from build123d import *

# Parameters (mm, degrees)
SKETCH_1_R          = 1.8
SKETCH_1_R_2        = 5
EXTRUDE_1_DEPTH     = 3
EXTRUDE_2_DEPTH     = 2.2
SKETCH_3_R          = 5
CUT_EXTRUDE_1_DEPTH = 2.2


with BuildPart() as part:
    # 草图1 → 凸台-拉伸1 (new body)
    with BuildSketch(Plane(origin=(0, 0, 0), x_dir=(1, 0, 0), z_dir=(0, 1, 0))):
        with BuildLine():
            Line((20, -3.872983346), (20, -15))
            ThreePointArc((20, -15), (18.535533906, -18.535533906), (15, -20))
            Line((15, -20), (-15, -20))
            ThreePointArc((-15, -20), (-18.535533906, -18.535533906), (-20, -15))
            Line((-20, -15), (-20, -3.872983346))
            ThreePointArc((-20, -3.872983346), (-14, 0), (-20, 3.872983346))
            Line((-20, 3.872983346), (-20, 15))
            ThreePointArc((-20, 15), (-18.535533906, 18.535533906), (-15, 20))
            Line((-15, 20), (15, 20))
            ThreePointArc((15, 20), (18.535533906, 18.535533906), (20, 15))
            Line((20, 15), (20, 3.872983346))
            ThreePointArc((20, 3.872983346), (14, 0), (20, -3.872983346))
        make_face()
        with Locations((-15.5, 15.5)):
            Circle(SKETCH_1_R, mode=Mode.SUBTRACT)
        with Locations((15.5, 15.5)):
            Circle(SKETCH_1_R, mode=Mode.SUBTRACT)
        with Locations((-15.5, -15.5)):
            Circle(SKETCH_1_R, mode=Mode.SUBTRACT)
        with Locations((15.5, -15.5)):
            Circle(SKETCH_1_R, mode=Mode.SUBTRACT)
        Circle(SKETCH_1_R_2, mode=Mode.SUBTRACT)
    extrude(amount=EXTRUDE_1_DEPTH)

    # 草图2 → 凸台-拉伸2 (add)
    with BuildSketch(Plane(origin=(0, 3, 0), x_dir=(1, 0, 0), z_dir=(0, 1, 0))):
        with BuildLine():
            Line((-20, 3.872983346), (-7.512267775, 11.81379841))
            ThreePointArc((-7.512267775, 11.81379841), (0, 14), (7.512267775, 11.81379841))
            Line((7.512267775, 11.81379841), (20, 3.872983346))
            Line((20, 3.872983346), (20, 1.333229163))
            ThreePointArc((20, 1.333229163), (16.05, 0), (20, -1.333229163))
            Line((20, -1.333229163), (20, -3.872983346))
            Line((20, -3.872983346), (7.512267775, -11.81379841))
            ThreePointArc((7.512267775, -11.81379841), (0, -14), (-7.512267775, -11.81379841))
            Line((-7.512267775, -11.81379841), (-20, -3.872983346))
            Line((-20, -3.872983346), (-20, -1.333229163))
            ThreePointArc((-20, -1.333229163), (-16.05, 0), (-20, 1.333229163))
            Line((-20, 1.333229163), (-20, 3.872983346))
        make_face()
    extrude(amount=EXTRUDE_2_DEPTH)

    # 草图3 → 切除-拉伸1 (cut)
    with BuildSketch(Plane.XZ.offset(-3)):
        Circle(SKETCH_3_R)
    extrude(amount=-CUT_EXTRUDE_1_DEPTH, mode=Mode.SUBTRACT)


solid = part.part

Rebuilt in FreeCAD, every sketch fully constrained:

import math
import FreeCAD as App
import Part
import Sketcher
from FreeCAD import Vector

doc = App.newDocument("Part")
body = doc.addObject("PartDesign::Body", "Body")

# Sketch on XZ plane
sketch1 = doc.addObject("Sketcher::SketchObject", "Sketch")
body.addObject(sketch1)
sketch1.AttachmentSupport = (doc.XZ_Plane, [""])
sketch1.MapMode = "FlatFace"
sketch1.addGeometry(Part.LineSegment(Vector(20, 15, 0), Vector(20, 3.872983, 0)), False)
sketch1.addGeometry(Part.ArcOfCircle(Part.Circle(Vector(18.25, 0, 0), Vector(0, 0, 1), 4.25), math.radians(65.684261), math.radians(294.315739)), False)
sketch1.addGeometry(Part.LineSegment(Vector(20, -3.872983, 0), Vector(20, -15, 0)), False)
sketch1.addGeometry(Part.ArcOfCircle(Part.Circle(Vector(15, -15, 0), Vector(0, 0, 1), 5), math.radians(-90), math.radians(0)), False)
sketch1.addGeometry(Part.LineSegment(Vector(15, -20, 0), Vector(-15, -20, 0)), False)
sketch1.addGeometry(Part.ArcOfCircle(Part.Circle(Vector(-15, -15, 0), Vector(0, 0, 1), 5), math.radians(180), math.radians(270)), False)
sketch1.addGeometry(Part.LineSegment(Vector(-20, -15, 0), Vector(-20, -3.872983, 0)), False)
sketch1.addGeometry(Part.ArcOfCircle(Part.Circle(Vector(-18.25, 0, 0), Vector(0, 0, 1), 4.25), math.radians(-114.315739), math.radians(114.315739)), False)
sketch1.addGeometry(Part.LineSegment(Vector(-20, 3.872983, 0), Vector(-20, 15, 0)), False)
sketch1.addGeometry(Part.ArcOfCircle(Part.Circle(Vector(-15, 15, 0), Vector(0, 0, 1), 5), math.radians(90), math.radians(180)), False)
sketch1.addGeometry(Part.LineSegment(Vector(-15, 20, 0), Vector(15, 20, 0)), False)
sketch1.addGeometry(Part.ArcOfCircle(Part.Circle(Vector(15, 15, 0), Vector(0, 0, 1), 5), math.radians(0), math.radians(90)), False)
sketch1.addGeometry(Part.Circle(Vector(15.5, 15.5, 0), Vector(0, 0, 1), 1.8), False)
sketch1.addGeometry(Part.Circle(Vector(-15.5, 15.5, 0), Vector(0, 0, 1), 1.8), False)
sketch1.addGeometry(Part.Circle(Vector(15.5, -15.5, 0), Vector(0, 0, 1), 1.8), False)
sketch1.addGeometry(Part.Circle(Vector(0, 0, 0), Vector(0, 0, 1), 5), False)
sketch1.addGeometry(Part.Circle(Vector(-15.5, -15.5, 0), Vector(0, 0, 1), 1.8), False)
sketch1.addConstraint(Sketcher.Constraint("Coincident", 0, 2, 1, 1))
sketch1.addConstraint(Sketcher.Constraint("Coincident", 1, 2, 2, 1))
sketch1.addConstraint(Sketcher.Constraint("Tangent", 2, 2, 3, 2))
sketch1.addConstraint(Sketcher.Constraint("Tangent", 3, 1, 4, 1))
sketch1.addConstraint(Sketcher.Constraint("Tangent", 4, 2, 5, 2))
sketch1.addConstraint(Sketcher.Constraint("Tangent", 5, 1, 6, 1))
sketch1.addConstraint(Sketcher.Constraint("Coincident", 6, 2, 7, 1))
sketch1.addConstraint(Sketcher.Constraint("Coincident", 7, 2, 8, 1))
sketch1.addConstraint(Sketcher.Constraint("Tangent", 8, 2, 9, 2))
sketch1.addConstraint(Sketcher.Constraint("Tangent", 9, 1, 10, 1))
sketch1.addConstraint(Sketcher.Constraint("Tangent", 10, 2, 11, 2))
sketch1.addConstraint(Sketcher.Constraint("Tangent", 11, 1, 0, 1))
sketch1.addConstraint(Sketcher.Constraint("Vertical", 0))
sketch1.addConstraint(Sketcher.Constraint("Vertical", 2))
sketch1.addConstraint(Sketcher.Constraint("Horizontal", 4))
sketch1.addConstraint(Sketcher.Constraint("Vertical", 6))
sketch1.addConstraint(Sketcher.Constraint("Vertical", 8))
sketch1.addConstraint(Sketcher.Constraint("Horizontal", 10))
sketch1.addConstraint(Sketcher.Constraint("Coincident", 15, 3, -1, 1))
sketch1.addConstraint(Sketcher.Constraint("Equal", 3, 5))
sketch1.addConstraint(Sketcher.Constraint("Equal", 1, 7))
sketch1.addConstraint(Sketcher.Constraint("Equal", 5, 9))
sketch1.addConstraint(Sketcher.Constraint("Equal", 9, 11))
sketch1.addConstraint(Sketcher.Constraint("Equal", 12, 13))
sketch1.addConstraint(Sketcher.Constraint("Equal", 13, 14))
sketch1.addConstraint(Sketcher.Constraint("Equal", 11, 15))
sketch1.addConstraint(Sketcher.Constraint("Equal", 14, 16))
sketch1.addConstraint(Sketcher.Constraint("Symmetric", 1, 3, 7, 3, -1, 1))
sketch1.addConstraint(Sketcher.Constraint("Symmetric", 3, 3, 9, 3, -1, 1))
sketch1.addConstraint(Sketcher.Constraint("Symmetric", 13, 3, 14, 3, -1, 1))
sketch1.addConstraint(Sketcher.Constraint("Symmetric", 12, 3, 16, 3, -1, 1))
sketch1.addConstraint(Sketcher.Constraint("Symmetric", 12, 3, 13, 3, -2))
sketch1.addConstraint(Sketcher.Constraint("Symmetric", 1, 2, 6, 2, -2))
sketch1.addConstraint(Sketcher.Constraint("Horizontal", 0, 2, 7, 2))
sketch1.addConstraint(Sketcher.Constraint("Diameter", 15, 10.0))
sketch1.addConstraint(Sketcher.Constraint("Diameter", 12, 3.6))
sketch1.addConstraint(Sketcher.Constraint("DistanceX", 4, 2, 4, 1, 30.0))
sketch1.addConstraint(Sketcher.Constraint("Radius", 1, 4.25))
sketch1.addConstraint(Sketcher.Constraint("DistanceY", 3, 3, -1, 1, 15.0))
sketch1.addConstraint(Sketcher.Constraint("DistanceX", 13, 3, 12, 3, 31.0))
sketch1.addConstraint(Sketcher.Constraint("DistanceY", 14, 3, 12, 3, 31.0))
sketch1.addConstraint(Sketcher.Constraint("DistanceX", 7, 3, 1, 3, 36.5))
pad1 = doc.addObject("PartDesign::Pad", "Pad")
body.addObject(pad1)
pad1.Profile = sketch1
pad1.Length = 3
pad1.Reversed = True

# Sketch on XZ plane
sketch2 = doc.addObject("Sketcher::SketchObject", "Sketch001")
body.addObject(sketch2)
sketch2.AttachmentSupport = (doc.XZ_Plane, [""])
sketch2.MapMode = "FlatFace"
sketch2.AttachmentOffset = App.Placement(Vector(0, 0, -3), App.Rotation())
sketch2.addGeometry(Part.LineSegment(Vector(-7.512268, -11.813798, 0), Vector(-20, -3.872983, 0)), False)
sketch2.addGeometry(Part.LineSegment(Vector(-20, -3.872983, 0), Vector(-20, -1.333229, 0)), False)
sketch2.addGeometry(Part.ArcOfCircle(Part.Circle(Vector(-18.25, 0, 0), Vector(0, 0, 1), 2.2), math.radians(-142.69821), math.radians(142.69821)), False)
sketch2.addGeometry(Part.LineSegment(Vector(-20, 1.333229, 0), Vector(-20, 3.872983, 0)), False)
sketch2.addGeometry(Part.LineSegment(Vector(-20, 3.872983, 0), Vector(-7.512268, 11.813798, 0)), False)
sketch2.addGeometry(Part.ArcOfCircle(Part.Circle(Vector(0, 0, 0), Vector(0, 0, 1), 14), math.radians(57.548157), math.radians(122.451843)), False)
sketch2.addGeometry(Part.LineSegment(Vector(7.512268, 11.813798, 0), Vector(20, 3.872983, 0)), False)
sketch2.addGeometry(Part.LineSegment(Vector(20, 3.872983, 0), Vector(20, 1.333229, 0)), False)
sketch2.addGeometry(Part.ArcOfCircle(Part.Circle(Vector(18.25, 0, 0), Vector(0, 0, 1), 2.2), math.radians(37.30179), math.radians(322.69821)), False)
sketch2.addGeometry(Part.LineSegment(Vector(20, -1.333229, 0), Vector(20, -3.872983, 0)), False)
sketch2.addGeometry(Part.LineSegment(Vector(20, -3.872983, 0), Vector(7.512268, -11.813798, 0)), False)
sketch2.addGeometry(Part.ArcOfCircle(Part.Circle(Vector(0, 0, 0), Vector(0, 0, 1), 14), math.radians(-122.451843), math.radians(-57.548157)), False)
sketch2.addConstraint(Sketcher.Constraint("Coincident", 0, 2, 1, 1))
sketch2.addConstraint(Sketcher.Constraint("Coincident", 1, 2, 2, 1))
sketch2.addConstraint(Sketcher.Constraint("Coincident", 2, 2, 3, 1))
sketch2.addConstraint(Sketcher.Constraint("Coincident", 3, 2, 4, 1))
sketch2.addConstraint(Sketcher.Constraint("Tangent", 4, 2, 5, 2))
sketch2.addConstraint(Sketcher.Constraint("Tangent", 5, 1, 6, 1))
sketch2.addConstraint(Sketcher.Constraint("Coincident", 6, 2, 7, 1))
sketch2.addConstraint(Sketcher.Constraint("Coincident", 7, 2, 8, 1))
sketch2.addConstraint(Sketcher.Constraint("Coincident", 8, 2, 9, 1))
sketch2.addConstraint(Sketcher.Constraint("Coincident", 9, 2, 10, 1))
sketch2.addConstraint(Sketcher.Constraint("Tangent", 10, 2, 11, 2))
sketch2.addConstraint(Sketcher.Constraint("Tangent", 11, 1, 0, 1))
sketch2.addConstraint(Sketcher.Constraint("Vertical", 1))
sketch2.addConstraint(Sketcher.Constraint("Vertical", 3))
sketch2.addConstraint(Sketcher.Constraint("Vertical", 7))
sketch2.addConstraint(Sketcher.Constraint("Vertical", 9))
sketch2.addConstraint(Sketcher.Constraint("Coincident", 5, 3, -1, 1))
sketch2.addConstraint(Sketcher.Constraint("Coincident", 11, 3, -1, 1))
sketch2.addConstraint(Sketcher.Constraint("Equal", 2, 8))
sketch2.addConstraint(Sketcher.Constraint("Equal", 5, 11))
sketch2.addConstraint(Sketcher.Constraint("Symmetric", 2, 3, 8, 3, -1, 1))
sketch2.addConstraint(Sketcher.Constraint("Symmetric", 0, 2, 6, 2, -1, 1))
sketch2.addConstraint(Sketcher.Constraint("Symmetric", 3, 2, 9, 2, -1, 1))
sketch2.addConstraint(Sketcher.Constraint("Symmetric", 3, 2, 6, 2, -2))
sketch2.addConstraint(Sketcher.Constraint("PointOnObject", 2, 3, -1))
sketch2.addConstraint(Sketcher.Constraint("Radius", 5, 14.0))
sketch2.addConstraint(Sketcher.Constraint("Radius", 2, 2.2))
sketch2.addConstraint(Sketcher.Constraint("DistanceX", 0, 2, -1, 1, 20.0))
sketch2.addConstraint(Sketcher.Constraint("DistanceX", 2, 3, 8, 3, 36.5))
sketch2.addConstraint(Sketcher.Constraint("DistanceY", -1, 1, 4, 2, 11.813798))
pad2 = doc.addObject("PartDesign::Pad", "Pad001")
body.addObject(pad2)
pad2.Profile = sketch2
pad2.Length = 2.2
pad2.Reversed = True

# Sketch on XZ plane
sketch3 = doc.addObject("Sketcher::SketchObject", "Sketch002")
body.addObject(sketch3)
sketch3.AttachmentSupport = (doc.XZ_Plane, [""])
sketch3.MapMode = "FlatFace"
sketch3.AttachmentOffset = App.Placement(Vector(0, 0, -3), App.Rotation())
sketch3.addGeometry(Part.Circle(Vector(0, 0, 0), Vector(0, 0, 1), 5), False)
sketch3.addConstraint(Sketcher.Constraint("Coincident", 0, 3, -1, 1))
sketch3.addConstraint(Sketcher.Constraint("Diameter", 0, 10.0))
pocket1 = doc.addObject("PartDesign::Pocket", "Pocket")
body.addObject(pocket1)
pocket1.Profile = sketch3
pocket1.Length = 2.2

doc.recompute()
